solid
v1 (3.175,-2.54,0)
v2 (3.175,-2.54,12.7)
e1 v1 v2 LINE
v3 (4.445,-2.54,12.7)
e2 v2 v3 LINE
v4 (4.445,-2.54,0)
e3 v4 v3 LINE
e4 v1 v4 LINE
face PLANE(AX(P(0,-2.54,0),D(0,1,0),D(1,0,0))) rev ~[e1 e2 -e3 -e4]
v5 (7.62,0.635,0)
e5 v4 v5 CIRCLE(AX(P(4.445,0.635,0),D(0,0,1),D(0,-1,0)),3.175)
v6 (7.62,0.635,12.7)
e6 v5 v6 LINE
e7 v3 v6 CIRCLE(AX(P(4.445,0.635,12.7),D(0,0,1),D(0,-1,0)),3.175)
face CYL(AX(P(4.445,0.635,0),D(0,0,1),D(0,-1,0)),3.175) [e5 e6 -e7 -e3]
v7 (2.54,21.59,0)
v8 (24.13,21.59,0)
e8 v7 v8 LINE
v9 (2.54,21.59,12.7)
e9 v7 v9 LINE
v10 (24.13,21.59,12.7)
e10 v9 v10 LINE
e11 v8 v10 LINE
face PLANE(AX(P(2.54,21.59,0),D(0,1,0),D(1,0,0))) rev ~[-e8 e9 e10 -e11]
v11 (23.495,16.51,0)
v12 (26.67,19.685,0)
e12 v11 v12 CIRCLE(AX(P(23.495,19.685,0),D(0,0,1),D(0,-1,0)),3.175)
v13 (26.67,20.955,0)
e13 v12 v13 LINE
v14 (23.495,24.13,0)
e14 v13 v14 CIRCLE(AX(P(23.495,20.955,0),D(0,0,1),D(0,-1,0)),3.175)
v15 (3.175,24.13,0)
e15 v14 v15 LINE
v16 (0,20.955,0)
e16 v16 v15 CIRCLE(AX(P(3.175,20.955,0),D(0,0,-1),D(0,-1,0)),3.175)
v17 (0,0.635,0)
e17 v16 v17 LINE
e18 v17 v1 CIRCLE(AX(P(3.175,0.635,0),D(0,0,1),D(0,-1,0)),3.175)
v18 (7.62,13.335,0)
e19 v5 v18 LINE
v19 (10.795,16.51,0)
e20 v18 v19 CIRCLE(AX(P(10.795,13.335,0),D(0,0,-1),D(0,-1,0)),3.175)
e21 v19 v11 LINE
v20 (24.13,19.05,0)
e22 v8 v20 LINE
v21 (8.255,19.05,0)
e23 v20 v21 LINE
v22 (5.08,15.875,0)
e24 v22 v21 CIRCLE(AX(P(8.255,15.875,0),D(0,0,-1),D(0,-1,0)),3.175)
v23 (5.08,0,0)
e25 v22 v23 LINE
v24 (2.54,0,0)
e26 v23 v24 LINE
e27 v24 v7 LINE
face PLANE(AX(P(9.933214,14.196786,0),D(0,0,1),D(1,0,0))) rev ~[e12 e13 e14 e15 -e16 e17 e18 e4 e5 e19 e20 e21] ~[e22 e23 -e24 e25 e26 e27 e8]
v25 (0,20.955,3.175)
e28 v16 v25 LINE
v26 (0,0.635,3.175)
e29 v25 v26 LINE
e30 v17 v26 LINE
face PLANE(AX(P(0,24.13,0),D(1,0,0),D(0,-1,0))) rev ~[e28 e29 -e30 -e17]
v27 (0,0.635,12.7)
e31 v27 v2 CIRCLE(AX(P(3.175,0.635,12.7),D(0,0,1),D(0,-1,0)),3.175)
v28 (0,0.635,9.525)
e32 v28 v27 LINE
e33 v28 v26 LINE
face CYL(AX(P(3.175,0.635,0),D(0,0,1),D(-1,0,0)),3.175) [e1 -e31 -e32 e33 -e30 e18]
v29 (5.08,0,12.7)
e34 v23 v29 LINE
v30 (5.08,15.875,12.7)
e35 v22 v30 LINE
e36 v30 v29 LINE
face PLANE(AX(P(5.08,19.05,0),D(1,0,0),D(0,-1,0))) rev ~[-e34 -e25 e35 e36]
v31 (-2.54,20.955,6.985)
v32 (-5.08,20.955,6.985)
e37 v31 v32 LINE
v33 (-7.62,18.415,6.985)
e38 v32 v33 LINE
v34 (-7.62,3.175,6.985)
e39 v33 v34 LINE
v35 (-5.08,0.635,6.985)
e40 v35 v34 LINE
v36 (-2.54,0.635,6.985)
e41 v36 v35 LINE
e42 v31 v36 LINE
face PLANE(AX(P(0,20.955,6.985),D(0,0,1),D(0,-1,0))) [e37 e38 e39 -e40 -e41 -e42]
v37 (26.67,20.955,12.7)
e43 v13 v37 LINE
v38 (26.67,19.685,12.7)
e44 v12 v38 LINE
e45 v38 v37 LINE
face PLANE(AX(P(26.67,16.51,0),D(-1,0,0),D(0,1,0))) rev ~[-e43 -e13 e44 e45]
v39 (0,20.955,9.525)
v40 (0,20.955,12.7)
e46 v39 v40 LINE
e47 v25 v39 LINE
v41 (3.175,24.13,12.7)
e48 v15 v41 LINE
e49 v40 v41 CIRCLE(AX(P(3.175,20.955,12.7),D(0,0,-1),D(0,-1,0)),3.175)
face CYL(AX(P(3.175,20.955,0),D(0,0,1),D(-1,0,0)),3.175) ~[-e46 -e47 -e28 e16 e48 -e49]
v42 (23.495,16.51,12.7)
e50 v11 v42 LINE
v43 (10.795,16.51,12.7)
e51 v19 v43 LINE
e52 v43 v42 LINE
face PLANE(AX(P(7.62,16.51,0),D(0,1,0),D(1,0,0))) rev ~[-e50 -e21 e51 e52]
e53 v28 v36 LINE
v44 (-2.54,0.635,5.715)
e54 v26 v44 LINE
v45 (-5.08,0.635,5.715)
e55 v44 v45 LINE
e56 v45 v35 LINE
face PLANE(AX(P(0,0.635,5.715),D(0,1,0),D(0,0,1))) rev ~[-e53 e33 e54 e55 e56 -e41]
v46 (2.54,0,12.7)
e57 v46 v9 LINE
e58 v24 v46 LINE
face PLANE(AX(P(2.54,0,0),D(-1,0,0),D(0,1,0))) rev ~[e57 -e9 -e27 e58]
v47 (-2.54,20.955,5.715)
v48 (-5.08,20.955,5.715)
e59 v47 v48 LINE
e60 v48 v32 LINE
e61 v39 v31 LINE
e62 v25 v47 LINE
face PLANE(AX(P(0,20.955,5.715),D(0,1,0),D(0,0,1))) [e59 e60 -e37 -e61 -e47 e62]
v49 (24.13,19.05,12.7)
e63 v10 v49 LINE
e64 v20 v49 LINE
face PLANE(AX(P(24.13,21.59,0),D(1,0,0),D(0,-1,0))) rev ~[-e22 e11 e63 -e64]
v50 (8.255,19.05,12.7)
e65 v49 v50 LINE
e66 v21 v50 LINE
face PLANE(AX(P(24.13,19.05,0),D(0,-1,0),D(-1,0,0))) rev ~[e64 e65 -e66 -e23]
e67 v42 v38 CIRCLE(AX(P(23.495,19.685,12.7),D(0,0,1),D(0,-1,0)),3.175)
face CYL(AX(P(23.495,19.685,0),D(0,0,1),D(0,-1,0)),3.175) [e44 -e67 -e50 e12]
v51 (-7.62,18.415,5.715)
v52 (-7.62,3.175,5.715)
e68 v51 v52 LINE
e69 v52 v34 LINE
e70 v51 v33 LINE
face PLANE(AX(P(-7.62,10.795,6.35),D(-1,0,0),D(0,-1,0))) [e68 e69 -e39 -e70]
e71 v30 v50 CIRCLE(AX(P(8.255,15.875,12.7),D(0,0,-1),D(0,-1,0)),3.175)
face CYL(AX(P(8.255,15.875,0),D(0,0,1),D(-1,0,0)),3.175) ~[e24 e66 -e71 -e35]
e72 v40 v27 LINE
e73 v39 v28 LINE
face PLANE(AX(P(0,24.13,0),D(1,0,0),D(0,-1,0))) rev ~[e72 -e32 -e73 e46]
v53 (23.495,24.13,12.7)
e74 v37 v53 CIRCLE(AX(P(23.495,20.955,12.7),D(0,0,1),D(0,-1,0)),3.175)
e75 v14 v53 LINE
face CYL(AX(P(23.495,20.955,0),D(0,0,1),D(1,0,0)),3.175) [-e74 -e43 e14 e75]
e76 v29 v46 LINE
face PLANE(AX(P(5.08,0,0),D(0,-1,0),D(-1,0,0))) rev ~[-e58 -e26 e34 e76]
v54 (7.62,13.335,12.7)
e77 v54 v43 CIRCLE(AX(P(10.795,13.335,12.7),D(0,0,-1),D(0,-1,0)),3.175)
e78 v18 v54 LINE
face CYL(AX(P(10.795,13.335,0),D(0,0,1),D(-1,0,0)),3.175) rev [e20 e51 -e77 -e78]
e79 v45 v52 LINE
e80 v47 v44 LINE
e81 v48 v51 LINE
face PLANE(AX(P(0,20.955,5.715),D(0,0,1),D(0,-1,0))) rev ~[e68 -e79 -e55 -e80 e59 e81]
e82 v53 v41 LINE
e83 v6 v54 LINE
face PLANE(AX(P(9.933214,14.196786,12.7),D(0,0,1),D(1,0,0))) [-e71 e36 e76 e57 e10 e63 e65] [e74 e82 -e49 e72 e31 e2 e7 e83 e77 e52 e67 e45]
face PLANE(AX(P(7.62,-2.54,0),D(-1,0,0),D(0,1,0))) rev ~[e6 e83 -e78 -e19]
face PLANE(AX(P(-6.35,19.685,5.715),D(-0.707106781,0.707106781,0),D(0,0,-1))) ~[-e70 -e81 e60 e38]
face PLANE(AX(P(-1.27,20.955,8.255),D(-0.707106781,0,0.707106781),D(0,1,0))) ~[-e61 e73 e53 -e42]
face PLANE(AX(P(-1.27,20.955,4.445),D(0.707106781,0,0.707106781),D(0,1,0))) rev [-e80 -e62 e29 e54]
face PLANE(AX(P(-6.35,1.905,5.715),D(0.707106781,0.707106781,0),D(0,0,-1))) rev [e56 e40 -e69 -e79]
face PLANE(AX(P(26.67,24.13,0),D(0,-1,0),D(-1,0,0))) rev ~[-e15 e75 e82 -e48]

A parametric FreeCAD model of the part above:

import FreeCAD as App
import Part
import Sketcher
Q = App.Units.Quantity


def edges_at(feature, points):
    """Names of the edges that pass closest to the given points."""
    edges = feature.Shape.Edges
    near = lambda p: min(range(len(edges)), key=lambda i: edges[i].distToShape(Part.Vertex(*p))[0])
    return sorted({f"Edge{near(p) + 1}" for p in points})


def add_polygon(sketch, points):
    """Adds a closed chain of lines whose ends are joined by coincident constraints."""
    first, n = sketch.GeometryCount, len(points)
    for a, b in zip(points, points[1:] + points[:1]):
        sketch.addGeometry(Part.LineSegment(App.Vector(*a, 0), App.Vector(*b, 0)), False)
    for i in range(n):
        sketch.addConstraint(Sketcher.Constraint("Coincident", first + i, 2, first + (i + 1) % n, 1))

doc = App.newDocument("Part")
params = doc.addObject("Spreadsheet::Sheet", "Params")
for row, (alias, value) in enumerate([
    ("sketch1_width", "0.3 in"),
    ("sketch1_width2", "0.1 in"),
    ("sketch1_width3", "0.75 in"),
    ("pad1_length", "0.5 in"),
    ("fillet_radius", "0.125 in"),
    ("sketch2_width", "0.8 in"),
    ("sketch2_height", "0.05 in"),
    ("pad2_length", "0.3 in"),
    ("chamfer_size", "0.1 in"),
], start=1):
    params.set(f"A{row}", alias)
    params.set(f"B{row}", "=" + value)
    params.setAlias(f"B{row}", alias)

body = doc.addObject("PartDesign::Body", "Body")

# Sketch on XY plane
sketch1 = doc.addObject("Sketcher::SketchObject", "Sketch")
body.addObject(sketch1)
sketch1.AttachmentSupport = (doc.XY_Plane, [""])
sketch1.MapMode = "FlatFace"
add_polygon(sketch1, [(0, 24.1), (0, -2.5), (7.6, -2.5), (7.6, 16.5), (26.7, 16.5), (26.7, 24.1)])  # lines 0-5
add_polygon(sketch1, [(5.1, 19.1), (5.1, 0), (2.5, 0), (2.5, 21.6), (24.1, 21.6), (24.1, 19.1)])  # lines 6-11
sketch1.addConstraint([
    Sketcher.Constraint("Vertical", 0),
    Sketcher.Constraint("Horizontal", 1),
    Sketcher.Constraint("Vertical", 2),
    Sketcher.Constraint("Horizontal", 3),
    Sketcher.Constraint("Vertical", 4),
    Sketcher.Constraint("Horizontal", 5),
    Sketcher.Constraint("Vertical", 6),
    Sketcher.Constraint("Horizontal", 7),
    Sketcher.Constraint("Vertical", 8),
    Sketcher.Constraint("Horizontal", 9),
    Sketcher.Constraint("Vertical", 10),
    Sketcher.Constraint("Horizontal", 11),
    Sketcher.Constraint("PointOnObject", 0, 2, -2),
    Sketcher.Constraint("PointOnObject", 6, 2, -1),
    Sketcher.Constraint("Equal", 3, 11),
    Sketcher.Constraint("Equal", 5, 0),
    Sketcher.Constraint("Equal", 11, 2),
    Sketcher.Constraint("Equal", 2, 6),
    Sketcher.Constraint("Equal", 9, 8),
    Sketcher.Constraint("DistanceX", 1, 1, 1, 2, Q("0.3 in")),
    Sketcher.Constraint("DistanceX", 7, 2, 7, 1, Q("0.1 in")),
    Sketcher.Constraint("DistanceX", 3, 1, 3, 2, Q("0.75 in")),
    Sketcher.Constraint("DistanceY", 0, 2, -1, 1, Q("0.1 in")),
    Sketcher.Constraint("DistanceX", -1, 1, 6, 2, Q("0.2 in")),
])
sketch1.setExpression("Constraints[31]", "Params.sketch1_width")
sketch1.setExpression("Constraints[32]", "Params.sketch1_width2")
sketch1.setExpression("Constraints[33]", "Params.sketch1_width3")
pad1 = doc.addObject("PartDesign::Pad", "Pad")
body.addObject(pad1)
pad1.Profile = sketch1
pad1.setExpression("Length", "Params.pad1_length")
doc.recompute()

fillet = doc.addObject("PartDesign::Fillet", "Fillet")
body.addObject(fillet)
fillet.Base = (pad1, edges_at(pad1, [
    (26.67, 24.13, 6.35),
    (26.67, 16.51, 6.35),
    (5.08, 19.05, 6.35),
    (0, 24.13, 6.35),
    (7.62, -2.54, 6.35),
    (0, -2.54, 6.35),
    (7.62, 16.51, 6.35),
]))
fillet.setExpression("Radius", "Params.fillet_radius")

# Sketch on YZ plane
sketch2 = doc.addObject("Sketcher::SketchObject", "Sketch001")
body.addObject(sketch2)
sketch2.AttachmentSupport = (doc.YZ_Plane, [""])
sketch2.MapMode = "FlatFace"
add_polygon(sketch2, [(21, 7), (21, 5.7), (0.6, 5.7), (0.6, 7)])  # lines 0-3
sketch2.addConstraint([
    Sketcher.Constraint("Vertical", 0),
    Sketcher.Constraint("Horizontal", 1),
    Sketcher.Constraint("Vertical", 2),
    Sketcher.Constraint("Horizontal", 3),
    Sketcher.Constraint("DistanceX", 1, 2, 1, 1, Q("0.8 in")),
    Sketcher.Constraint("DistanceY", 0, 2, 0, 1, Q("0.05 in")),
    Sketcher.Constraint("DistanceX", -1, 1, 0, 2, Q("0.825 in")),
    Sketcher.Constraint("DistanceY", -1, 1, 0, 2, Q("0.225 in")),
])
sketch2.setExpression("Constraints[8]", "Params.sketch2_width")
sketch2.setExpression("Constraints[9]", "Params.sketch2_height")
pad2 = doc.addObject("PartDesign::Pad", "Pad001")
body.addObject(pad2)
pad2.Profile = sketch2
pad2.setExpression("Length", "Params.pad2_length")
pad2.Reversed = True
doc.recompute()

chamfer = doc.addObject("PartDesign::Chamfer", "Chamfer")
body.addObject(chamfer)
chamfer.Base = (pad2, edges_at(pad2, [
    (0, 10.795, 5.715),
    (0, 10.795, 6.985),
    (-7.62, 20.955, 6.35),
    (-7.62, 0.635, 6.35),
]))
chamfer.setExpression("Size", "Params.chamfer_size")

doc.recompute()
